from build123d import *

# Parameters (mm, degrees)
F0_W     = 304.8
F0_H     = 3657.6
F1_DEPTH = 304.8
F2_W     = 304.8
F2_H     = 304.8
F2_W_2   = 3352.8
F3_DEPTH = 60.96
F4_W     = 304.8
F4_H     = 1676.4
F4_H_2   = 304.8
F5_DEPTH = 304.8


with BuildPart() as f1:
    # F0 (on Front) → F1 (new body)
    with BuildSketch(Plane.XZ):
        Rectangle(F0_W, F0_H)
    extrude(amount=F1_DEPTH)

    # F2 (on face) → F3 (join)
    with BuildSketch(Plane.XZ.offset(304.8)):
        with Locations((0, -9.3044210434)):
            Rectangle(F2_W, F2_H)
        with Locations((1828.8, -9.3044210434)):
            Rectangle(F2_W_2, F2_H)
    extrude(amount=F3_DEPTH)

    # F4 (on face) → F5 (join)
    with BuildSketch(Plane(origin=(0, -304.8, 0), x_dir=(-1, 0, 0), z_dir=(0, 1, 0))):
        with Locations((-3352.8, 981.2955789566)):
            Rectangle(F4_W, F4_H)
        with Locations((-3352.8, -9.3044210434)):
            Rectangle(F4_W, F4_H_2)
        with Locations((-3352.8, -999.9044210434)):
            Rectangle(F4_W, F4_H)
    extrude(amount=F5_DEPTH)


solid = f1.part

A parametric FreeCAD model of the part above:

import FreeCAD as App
import Part
import Sketcher
from FreeCAD import Vector
Q = App.Units.Quantity


def add_polygon(sketch, points):
    """Adds a closed chain of lines whose ends are joined by coincident constraints."""
    first, n = sketch.GeometryCount, len(points)
    for a, b in zip(points, points[1:] + points[:1]):
        sketch.addGeometry(Part.LineSegment(App.Vector(*a, 0), App.Vector(*b, 0)), False)
    for i in range(n):
        sketch.addConstraint(Sketcher.Constraint("Coincident", first + i, 2, first + (i + 1) % n, 1))

doc = App.newDocument("Part")
body = doc.addObject("PartDesign::Body", "Body")

sketch1 = doc.addObject("Sketcher::SketchObject", "Sketch")
body.addObject(sketch1)
sketch1.AttachmentSupport = (doc.XZ_Plane, [""])
sketch1.MapMode = "FlatFace"
add_polygon(sketch1, [(-152, 1829), (-152, -1829), (152, -1829), (152, 1829)])
sketch1.addConstraint([
    Sketcher.Constraint("Vertical", 0),
    Sketcher.Constraint("Horizontal", 1),
    Sketcher.Constraint("Vertical", 2),
    Sketcher.Constraint("Horizontal", 3),
    Sketcher.Constraint("Symmetric", 0, 2, 2, 2, -1, 1),
    Sketcher.Constraint("DistanceX", 1, 1, 1, 2, Q("12 in")),
    Sketcher.Constraint("DistanceY", 0, 2, 0, 1, Q("144 in")),
])
pad1 = doc.addObject("PartDesign::Pad", "Pad")
body.addObject(pad1)
pad1.Profile = sketch1
pad1.Length = Q("12 in")

sketch2 = doc.addObject("Sketcher::SketchObject", "Sketch001")
body.addObject(sketch2)
sketch2.AttachmentSupport = (doc.XZ_Plane, [""])
sketch2.MapMode = "FlatFace"
sketch2.AttachmentOffset = App.Placement(Vector(0, 0, 12 * 25.4), App.Rotation())
add_polygon(sketch2, [(-152, 143), (-152, -162), (3505, -162), (3505, 143)])
sketch2.addConstraint([
    Sketcher.Constraint("Vertical", 0),
    Sketcher.Constraint("Horizontal", 1),
    Sketcher.Constraint("Vertical", 2),
    Sketcher.Constraint("Horizontal", 3),
    Sketcher.Constraint("DistanceX", 1, 1, 1, 2, Q("144 in")),
    Sketcher.Constraint("DistanceY", 0, 2, 0, 1, Q("12 in")),
    Sketcher.Constraint("DistanceX", 0, 2, -1, 1, Q("6 in")),
    Sketcher.Constraint("DistanceY", 0, 2, -1, 1, Q("161.704421 mm")),
])
pad2 = doc.addObject("PartDesign::Pad", "Pad001")
body.addObject(pad2)
pad2.Profile = sketch2
pad2.Length = Q("2.4 in")

sketch3 = doc.addObject("Sketcher::SketchObject", "Sketch002")
body.addObject(sketch3)
sketch3.AttachmentSupport = (doc.XZ_Plane, [""])
sketch3.MapMode = "FlatFace"
sketch3.AttachmentOffset = App.Placement(Vector(0, 0, 12 * 25.4), App.Rotation())
add_polygon(sketch3, [(3505, 1819), (3505, -1838), (3200, -1838), (3200, 1819)])
sketch3.addConstraint([
    Sketcher.Constraint("Vertical", 0),
    Sketcher.Constraint("Horizontal", 1),
    Sketcher.Constraint("Vertical", 2),
    Sketcher.Constraint("Horizontal", 3),
    Sketcher.Constraint("DistanceX", 1, 2, 1, 1, Q("12 in")),
    Sketcher.Constraint("DistanceY", 0, 2, 0, 1, Q("144 in")),
    Sketcher.Constraint("DistanceX", -1, 1, 0, 2, Q("138 in")),
    Sketcher.Constraint("DistanceY", 0, 2, -1, 1, Q("1838.104421 mm")),
])
pad3 = doc.addObject("PartDesign::Pad", "Pad002")
body.addObject(pad3)
pad3.Profile = sketch3
pad3.Length = Q("12 in")
pad3.Reversed = True

doc.recompute()
